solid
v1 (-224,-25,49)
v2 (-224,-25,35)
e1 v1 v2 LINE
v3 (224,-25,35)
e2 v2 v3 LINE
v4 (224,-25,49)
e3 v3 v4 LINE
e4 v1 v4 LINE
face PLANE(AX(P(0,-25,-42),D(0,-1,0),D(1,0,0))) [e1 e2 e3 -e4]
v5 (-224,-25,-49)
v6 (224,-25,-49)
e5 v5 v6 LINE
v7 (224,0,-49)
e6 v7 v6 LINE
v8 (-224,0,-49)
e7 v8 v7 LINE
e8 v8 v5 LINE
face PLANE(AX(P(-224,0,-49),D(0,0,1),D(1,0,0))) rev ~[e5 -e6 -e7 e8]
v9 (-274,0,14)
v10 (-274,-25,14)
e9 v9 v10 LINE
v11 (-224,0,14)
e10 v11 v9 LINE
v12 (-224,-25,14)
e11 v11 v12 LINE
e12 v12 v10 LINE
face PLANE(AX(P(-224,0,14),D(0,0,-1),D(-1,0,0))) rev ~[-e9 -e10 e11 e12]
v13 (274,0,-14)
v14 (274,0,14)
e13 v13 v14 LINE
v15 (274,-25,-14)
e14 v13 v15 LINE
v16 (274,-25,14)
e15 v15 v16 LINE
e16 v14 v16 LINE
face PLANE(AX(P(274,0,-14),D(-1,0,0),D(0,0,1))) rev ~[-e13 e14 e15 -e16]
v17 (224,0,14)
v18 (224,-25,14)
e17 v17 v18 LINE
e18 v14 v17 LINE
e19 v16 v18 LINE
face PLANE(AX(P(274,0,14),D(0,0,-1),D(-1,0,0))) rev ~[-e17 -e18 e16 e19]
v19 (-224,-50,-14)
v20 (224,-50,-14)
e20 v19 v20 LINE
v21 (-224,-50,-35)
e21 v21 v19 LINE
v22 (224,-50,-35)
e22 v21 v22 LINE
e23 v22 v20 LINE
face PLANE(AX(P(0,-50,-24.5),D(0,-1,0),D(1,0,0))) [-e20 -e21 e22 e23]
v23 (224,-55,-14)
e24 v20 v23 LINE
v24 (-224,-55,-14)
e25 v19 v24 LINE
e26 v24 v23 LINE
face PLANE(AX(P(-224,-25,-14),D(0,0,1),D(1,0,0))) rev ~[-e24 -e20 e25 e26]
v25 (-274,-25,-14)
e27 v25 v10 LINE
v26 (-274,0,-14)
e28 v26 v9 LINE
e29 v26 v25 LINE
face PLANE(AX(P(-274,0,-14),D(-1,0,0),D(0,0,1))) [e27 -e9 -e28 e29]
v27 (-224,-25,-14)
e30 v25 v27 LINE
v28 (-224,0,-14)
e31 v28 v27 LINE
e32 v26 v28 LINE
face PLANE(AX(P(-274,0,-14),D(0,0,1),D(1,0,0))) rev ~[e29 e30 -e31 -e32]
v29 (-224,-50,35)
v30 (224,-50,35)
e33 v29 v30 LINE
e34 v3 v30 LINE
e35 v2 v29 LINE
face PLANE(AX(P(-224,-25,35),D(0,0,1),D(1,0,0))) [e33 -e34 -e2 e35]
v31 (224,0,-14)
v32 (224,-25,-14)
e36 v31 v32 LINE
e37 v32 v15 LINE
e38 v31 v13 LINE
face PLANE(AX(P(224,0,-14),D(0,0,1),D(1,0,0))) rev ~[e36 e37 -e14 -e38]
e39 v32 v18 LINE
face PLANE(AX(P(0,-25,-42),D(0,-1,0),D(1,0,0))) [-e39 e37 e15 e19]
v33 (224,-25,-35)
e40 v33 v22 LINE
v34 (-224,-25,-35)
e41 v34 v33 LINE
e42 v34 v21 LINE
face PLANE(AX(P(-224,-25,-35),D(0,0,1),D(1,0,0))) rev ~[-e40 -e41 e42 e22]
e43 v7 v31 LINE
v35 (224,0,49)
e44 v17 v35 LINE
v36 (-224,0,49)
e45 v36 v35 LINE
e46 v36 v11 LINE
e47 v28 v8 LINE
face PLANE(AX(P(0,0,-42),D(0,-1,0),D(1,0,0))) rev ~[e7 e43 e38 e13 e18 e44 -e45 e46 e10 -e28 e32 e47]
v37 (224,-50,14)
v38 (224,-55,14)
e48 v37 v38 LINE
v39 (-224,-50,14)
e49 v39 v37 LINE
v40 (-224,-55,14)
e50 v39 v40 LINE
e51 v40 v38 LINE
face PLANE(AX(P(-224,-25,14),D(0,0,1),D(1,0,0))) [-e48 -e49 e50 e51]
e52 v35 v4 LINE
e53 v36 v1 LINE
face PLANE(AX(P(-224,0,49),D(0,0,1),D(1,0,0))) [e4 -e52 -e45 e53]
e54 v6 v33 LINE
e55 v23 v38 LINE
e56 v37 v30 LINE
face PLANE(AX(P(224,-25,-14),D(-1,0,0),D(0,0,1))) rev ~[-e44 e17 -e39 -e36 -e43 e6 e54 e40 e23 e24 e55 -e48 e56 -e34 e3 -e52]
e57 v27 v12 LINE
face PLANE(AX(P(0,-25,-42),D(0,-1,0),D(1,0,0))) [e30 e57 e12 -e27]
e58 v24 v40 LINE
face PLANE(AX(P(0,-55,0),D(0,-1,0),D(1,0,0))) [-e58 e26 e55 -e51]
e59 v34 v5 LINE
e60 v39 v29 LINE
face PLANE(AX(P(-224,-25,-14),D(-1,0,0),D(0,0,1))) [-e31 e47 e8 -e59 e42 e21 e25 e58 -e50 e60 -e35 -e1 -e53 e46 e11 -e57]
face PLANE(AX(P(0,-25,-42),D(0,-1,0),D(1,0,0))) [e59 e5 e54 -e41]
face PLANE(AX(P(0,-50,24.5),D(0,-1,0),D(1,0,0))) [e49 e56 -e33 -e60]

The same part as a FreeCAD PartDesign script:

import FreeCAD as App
import Part
import Sketcher

V = App.Vector
Q = App.Units.Quantity

doc = App.newDocument("Part")
body = doc.addObject("PartDesign::Body", "Body")

sketch1 = body.newObject("Sketcher::SketchObject", "Sketch")
sketch1.AttachmentSupport = (doc.getObject("XZ_Plane"), [""])
sketch1.MapMode = "FlatFace"
sketch1.addGeometry([
    Part.LineSegment(V(-224, -49, 0), V(224, -49, 0)),
    Part.LineSegment(V(224, -49, 0), V(224, -14, 0)),
    Part.LineSegment(V(224, -14, 0), V(274, -14, 0)),
    Part.LineSegment(V(274, -14, 0), V(274, 14, 0)),
    Part.LineSegment(V(274, 14, 0), V(224, 14, 0)),
    Part.LineSegment(V(224, 14, 0), V(224, 49, 0)),
    Part.LineSegment(V(224, 49, 0), V(-224, 49, 0)),
    Part.LineSegment(V(-224, 49, 0), V(-224, 14, 0)),
    Part.LineSegment(V(-224, 14, 0), V(-274, 14, 0)),
    Part.LineSegment(V(-274, 14, 0), V(-274, -14, 0)),
    Part.LineSegment(V(-274, -14, 0), V(-224, -14, 0)),
    Part.LineSegment(V(-224, -14, 0), V(-224, -49, 0)),
], False)
sketch1.addConstraint([
    Sketcher.Constraint("Coincident", 0, 2, 1, 1),
    Sketcher.Constraint("Coincident", 1, 2, 2, 1),
    Sketcher.Constraint("Coincident", 2, 2, 3, 1),
    Sketcher.Constraint("Coincident", 3, 2, 4, 1),
    Sketcher.Constraint("Coincident", 4, 2, 5, 1),
    Sketcher.Constraint("Coincident", 5, 2, 6, 1),
    Sketcher.Constraint("Coincident", 6, 2, 7, 1),
    Sketcher.Constraint("Coincident", 7, 2, 8, 1),
    Sketcher.Constraint("Coincident", 8, 2, 9, 1),
    Sketcher.Constraint("Coincident", 9, 2, 10, 1),
    Sketcher.Constraint("Coincident", 10, 2, 11, 1),
    Sketcher.Constraint("Coincident", 11, 2, 0, 1),
    Sketcher.Constraint("Horizontal", 0),
    Sketcher.Constraint("Vertical", 1),
    Sketcher.Constraint("Horizontal", 2),
    Sketcher.Constraint("Vertical", 3),
    Sketcher.Constraint("Horizontal", 4),
    Sketcher.Constraint("Vertical", 5),
    Sketcher.Constraint("Horizontal", 6),
    Sketcher.Constraint("Vertical", 7),
    Sketcher.Constraint("Horizontal", 8),
    Sketcher.Constraint("Vertical", 9),
    Sketcher.Constraint("Horizontal", 10),
    Sketcher.Constraint("Vertical", 11),
    Sketcher.Constraint("Symmetric", 0, 2, 6, 2, -1, 1),
    Sketcher.Constraint("Symmetric", 2, 2, 8, 2, -1, 1),
    Sketcher.Constraint("Symmetric", 4, 2, 10, 2, -1, 1),
    Sketcher.Constraint("Symmetric", 4, 2, 7, 2, -2),
    Sketcher.Constraint("DistanceX", 0, 1, 0, 2, Q("448 mm")),
    Sketcher.Constraint("DistanceX", 2, 1, 2, 2, Q("50 mm")),
    Sketcher.Constraint("DistanceY", 1, 1, 1, 2, Q("35 mm")),
    Sketcher.Constraint("DistanceY", 3, 1, 3, 2, Q("28 mm")),
])
pad1 = body.newObject("PartDesign::Pad", "Pad")
pad1.Profile = sketch1
pad1.Length = 25

sketch2 = body.newObject("Sketcher::SketchObject", "Sketch001")
sketch2.AttachmentSupport = (doc.getObject("XZ_Plane"), [""])
sketch2.MapMode = "FlatFace"
sketch2.AttachmentOffset = App.Placement(V(0, 0, 25), App.Rotation())
sketch2.addGeometry([
    Part.LineSegment(V(-224, 35, 0), V(-224, 14, 0)),
    Part.LineSegment(V(-224, 14, 0), V(224, 14, 0)),
    Part.LineSegment(V(224, 14, 0), V(224, 35, 0)),
    Part.LineSegment(V(224, 35, 0), V(-224, 35, 0)),
    Part.LineSegment(V(-224, -14, 0), V(-224, -35, 0)),
    Part.LineSegment(V(-224, -35, 0), V(224, -35, 0)),
    Part.LineSegment(V(224, -35, 0), V(224, -14, 0)),
    Part.LineSegment(V(224, -14, 0), V(-224, -14, 0)),
], False)
sketch2.addConstraint([
    Sketcher.Constraint("Coincident", 0, 2, 1, 1),
    Sketcher.Constraint("Coincident", 1, 2, 2, 1),
    Sketcher.Constraint("Coincident", 2, 2, 3, 1),
    Sketcher.Constraint("Coincident", 3, 2, 0, 1),
    Sketcher.Constraint("Coincident", 4, 2, 5, 1),
    Sketcher.Constraint("Coincident", 5, 2, 6, 1),
    Sketcher.Constraint("Coincident", 6, 2, 7, 1),
    Sketcher.Constraint("Coincident", 7, 2, 4, 1),
    Sketcher.Constraint("Vertical", 0),
    Sketcher.Constraint("Horizontal", 1),
    Sketcher.Constraint("Vertical", 2),
    Sketcher.Constraint("Horizontal", 3),
    Sketcher.Constraint("Vertical", 4),
    Sketcher.Constraint("Horizontal", 5),
    Sketcher.Constraint("Vertical", 6),
    Sketcher.Constraint("Horizontal", 7),
    Sketcher.Constraint("Symmetric", 2, 2, 4, 2, -1, 1),
    Sketcher.Constraint("Symmetric", 0, 2, 6, 2, -1, 1),
    Sketcher.Constraint("Vertical", 3, 2, 4, 2),
    Sketcher.Constraint("DistanceX", 1, 1, 1, 2, Q("448 mm")),
    Sketcher.Constraint("DistanceY", 0, 2, 0, 1, Q("21 mm")),
    Sketcher.Constraint("DistanceY", -1, 1, 0, 2, Q("14 mm")),
])
pad2 = body.newObject("PartDesign::Pad", "Pad001")
pad2.Profile = sketch2
pad2.Length = 25

sketch3 = body.newObject("Sketcher::SketchObject", "Sketch002")
sketch3.AttachmentSupport = (doc.getObject("XZ_Plane"), [""])
sketch3.MapMode = "FlatFace"
sketch3.AttachmentOffset = App.Placement(V(0, 0, 25), App.Rotation())
sketch3.addGeometry([
    Part.LineSegment(V(-224, 14, 0), V(-224, -14, 0)),
    Part.LineSegment(V(-224, -14, 0), V(224, -14, 0)),
    Part.LineSegment(V(224, -14, 0), V(224, 14, 0)),
    Part.LineSegment(V(224, 14, 0), V(-224, 14, 0)),
], False)
sketch3.addConstraint([
    Sketcher.Constraint("Coincident", 0, 2, 1, 1),
    Sketcher.Constraint("Coincident", 1, 2, 2, 1),
    Sketcher.Constraint("Coincident", 2, 2, 3, 1),
    Sketcher.Constraint("Coincident", 3, 2, 0, 1),
    Sketcher.Constraint("Vertical", 0),
    Sketcher.Constraint("Horizontal", 1),
    Sketcher.Constraint("Vertical", 2),
    Sketcher.Constraint("Horizontal", 3),
    Sketcher.Constraint("Symmetric", 0, 2, 2, 2, -1, 1),
    Sketcher.Constraint("DistanceX", 1, 1, 1, 2, Q("448 mm")),
    Sketcher.Constraint("DistanceY", 0, 2, 0, 1, Q("28 mm")),
])
pad3 = body.newObject("PartDesign::Pad", "Pad002")
pad3.Profile = sketch3
pad3.Length = 30

doc.recompute()
